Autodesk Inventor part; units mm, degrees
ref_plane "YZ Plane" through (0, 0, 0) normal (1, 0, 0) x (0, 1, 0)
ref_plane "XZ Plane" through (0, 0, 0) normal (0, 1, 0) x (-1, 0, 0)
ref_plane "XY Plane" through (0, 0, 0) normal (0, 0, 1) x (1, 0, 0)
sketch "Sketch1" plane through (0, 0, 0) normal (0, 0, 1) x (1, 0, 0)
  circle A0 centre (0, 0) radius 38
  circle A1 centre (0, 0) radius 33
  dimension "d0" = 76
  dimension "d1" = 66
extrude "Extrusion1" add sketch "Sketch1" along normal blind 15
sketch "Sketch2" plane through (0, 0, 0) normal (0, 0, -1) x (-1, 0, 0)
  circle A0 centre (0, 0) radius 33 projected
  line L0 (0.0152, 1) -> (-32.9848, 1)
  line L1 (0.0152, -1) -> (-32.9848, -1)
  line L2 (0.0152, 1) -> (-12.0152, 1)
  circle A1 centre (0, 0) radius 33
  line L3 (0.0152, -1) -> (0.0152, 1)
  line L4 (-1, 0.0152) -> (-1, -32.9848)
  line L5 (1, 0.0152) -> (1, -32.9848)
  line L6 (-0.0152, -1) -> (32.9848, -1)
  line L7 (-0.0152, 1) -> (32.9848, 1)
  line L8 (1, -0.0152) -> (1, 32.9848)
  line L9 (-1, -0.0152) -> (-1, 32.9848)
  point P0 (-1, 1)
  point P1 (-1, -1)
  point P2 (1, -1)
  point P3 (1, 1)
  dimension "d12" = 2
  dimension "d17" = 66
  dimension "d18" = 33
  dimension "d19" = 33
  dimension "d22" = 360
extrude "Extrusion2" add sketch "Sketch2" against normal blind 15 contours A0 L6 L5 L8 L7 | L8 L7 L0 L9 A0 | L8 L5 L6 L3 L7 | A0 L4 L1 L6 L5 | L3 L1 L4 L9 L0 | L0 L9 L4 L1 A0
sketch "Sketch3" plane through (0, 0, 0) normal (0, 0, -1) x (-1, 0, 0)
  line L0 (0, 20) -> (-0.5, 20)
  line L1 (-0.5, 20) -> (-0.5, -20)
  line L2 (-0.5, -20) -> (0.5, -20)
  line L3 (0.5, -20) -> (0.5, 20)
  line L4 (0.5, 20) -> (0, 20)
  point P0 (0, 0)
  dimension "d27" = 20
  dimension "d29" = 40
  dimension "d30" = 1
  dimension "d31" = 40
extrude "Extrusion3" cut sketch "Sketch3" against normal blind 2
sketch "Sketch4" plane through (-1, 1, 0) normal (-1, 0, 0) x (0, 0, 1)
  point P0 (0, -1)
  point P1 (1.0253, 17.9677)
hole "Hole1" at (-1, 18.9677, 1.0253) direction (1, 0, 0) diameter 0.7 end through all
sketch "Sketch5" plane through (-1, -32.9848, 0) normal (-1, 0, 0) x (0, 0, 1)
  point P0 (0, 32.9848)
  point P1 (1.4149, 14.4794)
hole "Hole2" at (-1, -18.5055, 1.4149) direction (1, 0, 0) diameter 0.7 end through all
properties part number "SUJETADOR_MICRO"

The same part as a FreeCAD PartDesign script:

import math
import FreeCAD as App
import Part
import Sketcher
from FreeCAD import Vector

doc = App.newDocument("Part")
body = doc.addObject("PartDesign::Body", "Body")

sketch1 = body.newObject("Sketcher::SketchObject", "Sketch")
sketch1.AttachmentSupport = (doc.getObject("XY_Plane"), [""])
sketch1.MapMode = "FlatFace"
sketch1.addGeometry([
    Part.Circle(Vector(0, 0, 0), Vector(0, 0, 1), 38),
    Part.Circle(Vector(0, 0, 0), Vector(0, 0, 1), 33),
], False)
sketch1.addConstraint([
    Sketcher.Constraint("Coincident", 0, 3, -1, 1),
    Sketcher.Constraint("Coincident", 1, 3, -1, 1),
    Sketcher.Constraint("Diameter", 0, 76.0),
    Sketcher.Constraint("Diameter", 1, 66.0),
])
pad1 = body.newObject("PartDesign::Pad", "Pad")
pad1.Profile = sketch1
pad1.Length = 15

sketch2 = body.newObject("Sketcher::SketchObject", "Sketch001")
sketch2.AttachmentSupport = (doc.getObject("XY_Plane"), [""])
sketch2.MapMode = "FlatFace"
sketch2.addGeometry([
    Part.ArcOfCircle(Part.Circle(Vector(0, 0, 0), Vector(0, 0, 1), 33), math.radians(178.263496), math.radians(181.736504)),
    Part.LineSegment(Vector(-32.9848, 1, 0), Vector(-1, 1, 0)),
    Part.LineSegment(Vector(-1, 1, 0), Vector(-1, 32.9848, 0)),
    Part.ArcOfCircle(Part.Circle(Vector(0, 0, 0), Vector(0, 0, 1), 33), math.radians(88.263496), math.radians(91.736504)),
    Part.LineSegment(Vector(1, 32.9848, 0), Vector(1, 1, 0)),
    Part.LineSegment(Vector(1, 1, 0), Vector(32.9848, 1, 0)),
    Part.ArcOfCircle(Part.Circle(Vector(0, 0, 0), Vector(0, 0, 1), 33), math.radians(-1.736504), math.radians(1.736504)),
    Part.LineSegment(Vector(32.9848, -1, 0), Vector(1, -1, 0)),
    Part.LineSegment(Vector(1, -1, 0), Vector(1, -32.9848, 0)),
    Part.ArcOfCircle(Part.Circle(Vector(0, 0, 0), Vector(0, 0, 1), 33), math.radians(-91.736504), math.radians(-88.263496)),
    Part.LineSegment(Vector(-1, -32.9848, 0), Vector(-1, -1, 0)),
    Part.LineSegment(Vector(-1, -1, 0), Vector(-32.9848, -1, 0)),
], False)
sketch2.addConstraint([
    Sketcher.Constraint("Coincident", 0, 1, 1, 1),
    Sketcher.Constraint("Coincident", 1, 2, 2, 1),
    Sketcher.Constraint("Coincident", 2, 2, 3, 2),
    Sketcher.Constraint("Coincident", 3, 1, 4, 1),
    Sketcher.Constraint("Coincident", 4, 2, 5, 1),
    Sketcher.Constraint("Coincident", 5, 2, 6, 2),
    Sketcher.Constraint("Coincident", 6, 1, 7, 1),
    Sketcher.Constraint("Coincident", 7, 2, 8, 1),
    Sketcher.Constraint("Coincident", 8, 2, 9, 2),
    Sketcher.Constraint("Coincident", 9, 1, 10, 1),
    Sketcher.Constraint("Coincident", 10, 2, 11, 1),
    Sketcher.Constraint("Coincident", 11, 2, 0, 2),
    Sketcher.Constraint("Horizontal", 1),
    Sketcher.Constraint("Vertical", 2),
    Sketcher.Constraint("Vertical", 4),
    Sketcher.Constraint("Horizontal", 5),
    Sketcher.Constraint("Horizontal", 7),
    Sketcher.Constraint("Vertical", 8),
    Sketcher.Constraint("Vertical", 10),
    Sketcher.Constraint("Horizontal", 11),
    Sketcher.Constraint("Coincident", 0, 3, -1, 1),
    Sketcher.Constraint("Coincident", 3, 3, -1, 1),
    Sketcher.Constraint("Coincident", 6, 3, -1, 1),
    Sketcher.Constraint("Coincident", 9, 3, -1, 1),
    Sketcher.Constraint("Equal", 0, 3),
    Sketcher.Constraint("Equal", 3, 6),
    Sketcher.Constraint("Equal", 6, 9),
    Sketcher.Constraint("Symmetric", 1, 2, 7, 2, -1, 1),
    Sketcher.Constraint("Symmetric", 4, 2, 10, 2, -1, 1),
    Sketcher.Constraint("Symmetric", 1, 2, 4, 2, -2),
    Sketcher.Constraint("Equal", 11, 2),
    Sketcher.Constraint("Radius", 0, 33.0),
    Sketcher.Constraint("DistanceX", 2, 2, 3, 1, 2.0),
])
pad2 = body.newObject("PartDesign::Pad", "Pad001")
pad2.Profile = sketch2
pad2.Length = 15

sketch3 = body.newObject("Sketcher::SketchObject", "Sketch002")
sketch3.AttachmentSupport = (doc.getObject("XY_Plane"), [""])
sketch3.MapMode = "FlatFace"
sketch3.addGeometry([
    Part.LineSegment(Vector(-0.5, 20, 0), Vector(0.5, 20, 0)),
    Part.LineSegment(Vector(0.5, 20, 0), Vector(0.5, -20, 0)),
    Part.LineSegment(Vector(0.5, -20, 0), Vector(-0.5, -20, 0)),
    Part.LineSegment(Vector(-0.5, -20, 0), Vector(-0.5, 20, 0)),
], False)
sketch3.addConstraint([
    Sketcher.Constraint("Coincident", 0, 2, 1, 1),
    Sketcher.Constraint("Coincident", 1, 2, 2, 1),
    Sketcher.Constraint("Coincident", 2, 2, 3, 1),
    Sketcher.Constraint("Coincident", 3, 2, 0, 1),
    Sketcher.Constraint("Horizontal", 0),
    Sketcher.Constraint("Vertical", 1),
    Sketcher.Constraint("Horizontal", 2),
    Sketcher.Constraint("Vertical", 3),
    Sketcher.Constraint("Symmetric", 0, 2, 2, 2, -1, 1),
    Sketcher.Constraint("DistanceX", 0, 1, 0, 2, 1.0),
    Sketcher.Constraint("DistanceY", 1, 2, 1, 1, 40.0),
])
pocket1 = body.newObject("PartDesign::Pocket", "Pocket")
pocket1.Profile = sketch3
pocket1.Length = 2
pocket1.Reversed = True

sketch4 = body.newObject("Sketcher::SketchObject", "Sketch003")
sketch4.AttachmentSupport = (doc.getObject("YZ_Plane"), [""])
sketch4.MapMode = "FlatFace"
sketch4.AttachmentOffset = App.Placement(Vector(0, 0, -1), App.Rotation())
sketch4.addGeometry(Part.Circle(Vector(18.9677, 1.0253, 0), Vector(0, 0, 1), 0.35), False)
sketch4.addConstraint([
    Sketcher.Constraint("Diameter", 0, 0.7),
    Sketcher.Constraint("DistanceX", -1, 1, 0, 3, 18.9677),
    Sketcher.Constraint("DistanceY", -1, 1, 0, 3, 1.0253),
])
doc.recompute()
hole = body.newObject("PartDesign::Hole", "Hole")
hole.Profile = sketch4
hole.ThreadType = "None"
hole.Diameter = 0.7
hole.DepthType = "ThroughAll"
hole.Reversed = True

sketch5 = body.newObject("Sketcher::SketchObject", "Sketch004")
sketch5.AttachmentSupport = (doc.getObject("YZ_Plane"), [""])
sketch5.MapMode = "FlatFace"
sketch5.AttachmentOffset = App.Placement(Vector(0, 0, -1), App.Rotation())
sketch5.addGeometry(Part.Circle(Vector(-18.5055, 1.4149, 0), Vector(0, 0, 1), 0.35), False)
sketch5.addConstraint([
    Sketcher.Constraint("Diameter", 0, 0.7),
    Sketcher.Constraint("DistanceY", -1, 1, 0, 3, 1.415),
    Sketcher.Constraint("DistanceX", 0, 3, -1, 1, 18.5055),
])
doc.recompute()
hole2 = body.newObject("PartDesign::Hole", "Hole001")
hole2.Profile = sketch5
hole2.ThreadType = "None"
hole2.Diameter = 0.7
hole2.DepthType = "ThroughAll"
hole2.Reversed = True

doc.recompute()
